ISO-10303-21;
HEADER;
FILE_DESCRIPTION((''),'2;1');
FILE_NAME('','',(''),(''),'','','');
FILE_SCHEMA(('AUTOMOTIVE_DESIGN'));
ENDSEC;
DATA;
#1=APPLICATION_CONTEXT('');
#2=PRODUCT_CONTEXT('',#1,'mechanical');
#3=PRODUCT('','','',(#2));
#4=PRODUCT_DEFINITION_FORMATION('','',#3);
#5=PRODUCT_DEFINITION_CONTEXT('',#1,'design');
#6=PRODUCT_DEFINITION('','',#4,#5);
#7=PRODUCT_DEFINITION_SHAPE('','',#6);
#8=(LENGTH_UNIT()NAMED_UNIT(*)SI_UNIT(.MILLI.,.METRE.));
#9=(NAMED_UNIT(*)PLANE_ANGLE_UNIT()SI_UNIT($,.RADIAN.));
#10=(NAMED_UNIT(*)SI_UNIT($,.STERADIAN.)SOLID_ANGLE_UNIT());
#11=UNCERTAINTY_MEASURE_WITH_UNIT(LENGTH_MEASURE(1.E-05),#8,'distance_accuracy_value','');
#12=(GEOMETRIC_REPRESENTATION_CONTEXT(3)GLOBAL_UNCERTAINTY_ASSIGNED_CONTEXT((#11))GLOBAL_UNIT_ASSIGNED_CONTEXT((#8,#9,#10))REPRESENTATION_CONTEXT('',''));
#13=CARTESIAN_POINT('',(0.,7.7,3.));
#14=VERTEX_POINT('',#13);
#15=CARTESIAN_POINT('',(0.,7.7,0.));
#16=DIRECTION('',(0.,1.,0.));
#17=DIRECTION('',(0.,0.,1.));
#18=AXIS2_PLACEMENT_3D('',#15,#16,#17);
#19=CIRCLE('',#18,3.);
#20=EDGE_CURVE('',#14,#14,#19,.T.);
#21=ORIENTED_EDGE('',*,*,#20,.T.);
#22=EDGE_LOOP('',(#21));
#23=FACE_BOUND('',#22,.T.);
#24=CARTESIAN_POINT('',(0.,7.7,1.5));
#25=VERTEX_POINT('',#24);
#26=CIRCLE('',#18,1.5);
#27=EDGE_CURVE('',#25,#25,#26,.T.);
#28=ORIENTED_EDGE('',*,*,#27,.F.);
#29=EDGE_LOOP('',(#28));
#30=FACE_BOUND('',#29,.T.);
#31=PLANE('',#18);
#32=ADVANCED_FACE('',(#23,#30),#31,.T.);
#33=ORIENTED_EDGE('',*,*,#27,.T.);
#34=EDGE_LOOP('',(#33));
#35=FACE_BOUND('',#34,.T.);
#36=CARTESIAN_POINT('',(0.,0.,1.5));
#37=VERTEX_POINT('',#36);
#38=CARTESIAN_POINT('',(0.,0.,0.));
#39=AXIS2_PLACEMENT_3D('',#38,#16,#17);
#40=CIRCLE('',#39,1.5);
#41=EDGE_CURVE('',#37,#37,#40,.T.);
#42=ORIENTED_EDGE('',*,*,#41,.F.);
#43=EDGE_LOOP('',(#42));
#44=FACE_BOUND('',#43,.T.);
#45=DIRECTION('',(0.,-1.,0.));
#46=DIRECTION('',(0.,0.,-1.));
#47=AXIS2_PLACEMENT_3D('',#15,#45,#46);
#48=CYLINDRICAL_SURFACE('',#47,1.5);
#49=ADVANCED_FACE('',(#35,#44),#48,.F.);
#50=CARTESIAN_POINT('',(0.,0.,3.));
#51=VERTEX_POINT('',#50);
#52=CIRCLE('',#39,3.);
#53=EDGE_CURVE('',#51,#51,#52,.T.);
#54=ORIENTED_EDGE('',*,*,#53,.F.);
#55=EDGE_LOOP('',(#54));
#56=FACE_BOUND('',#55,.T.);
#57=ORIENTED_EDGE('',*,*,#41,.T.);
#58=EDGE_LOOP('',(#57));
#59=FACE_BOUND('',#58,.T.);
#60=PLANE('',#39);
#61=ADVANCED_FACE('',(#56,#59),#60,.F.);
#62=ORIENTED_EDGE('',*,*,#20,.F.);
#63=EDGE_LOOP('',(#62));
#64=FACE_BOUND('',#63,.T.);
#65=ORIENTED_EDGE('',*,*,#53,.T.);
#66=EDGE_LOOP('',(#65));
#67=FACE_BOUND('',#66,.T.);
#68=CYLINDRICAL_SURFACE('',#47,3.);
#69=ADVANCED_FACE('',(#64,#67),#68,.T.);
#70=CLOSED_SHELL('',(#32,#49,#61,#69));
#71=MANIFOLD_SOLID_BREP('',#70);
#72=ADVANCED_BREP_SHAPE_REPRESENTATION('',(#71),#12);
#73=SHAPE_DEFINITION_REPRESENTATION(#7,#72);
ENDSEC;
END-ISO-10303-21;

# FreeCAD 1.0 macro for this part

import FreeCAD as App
import Part
import Sketcher

V = App.Vector
Q = App.Units.Quantity

doc = App.newDocument("Part")
body = doc.addObject("PartDesign::Body", "Body")

# Sketch on XZ plane
sketch1 = body.newObject("Sketcher::SketchObject", "Sketch")
sketch1.AttachmentSupport = (doc.getObject("XZ_Plane"), [""])
sketch1.MapMode = "FlatFace"
sketch1.addGeometry([
    Part.Circle(V(0, 0, 0), V(0, 0, 1), 3),
    Part.Circle(V(0, 0, 0), V(0, 0, 1), 1.5),
], False)
sketch1.addConstraint([
    Sketcher.Constraint("Coincident", 0, 3, -1, 1),
    Sketcher.Constraint("Coincident", 1, 3, -1, 1),
    Sketcher.Constraint("Diameter", 0, Q("6 mm")),
    Sketcher.Constraint("Diameter", 1, Q("3 mm")),
])
pad1 = body.newObject("PartDesign::Pad", "Pad")
pad1.Profile = sketch1
pad1.Length = 7.7
pad1.Reversed = True

doc.recompute()
